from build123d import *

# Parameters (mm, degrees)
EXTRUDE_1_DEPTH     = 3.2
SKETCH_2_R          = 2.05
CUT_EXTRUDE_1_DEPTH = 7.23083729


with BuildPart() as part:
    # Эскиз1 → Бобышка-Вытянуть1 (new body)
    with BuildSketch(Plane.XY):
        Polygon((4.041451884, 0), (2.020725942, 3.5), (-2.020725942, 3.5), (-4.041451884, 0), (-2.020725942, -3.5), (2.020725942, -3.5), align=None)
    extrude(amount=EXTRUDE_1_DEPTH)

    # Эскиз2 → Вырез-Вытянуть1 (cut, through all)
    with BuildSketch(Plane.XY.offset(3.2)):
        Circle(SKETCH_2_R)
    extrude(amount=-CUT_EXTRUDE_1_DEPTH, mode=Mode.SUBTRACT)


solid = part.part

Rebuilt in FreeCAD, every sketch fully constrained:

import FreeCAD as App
import Part
import Sketcher

V = App.Vector
Q = App.Units.Quantity


def add_polygon(sketch, points):
    """Adds a closed chain of lines whose ends are joined by coincident constraints."""
    first, n = sketch.GeometryCount, len(points)
    for a, b in zip(points, points[1:] + points[:1]):
        sketch.addGeometry(Part.LineSegment(App.Vector(*a, 0), App.Vector(*b, 0)), False)
    for i in range(n):
        sketch.addConstraint(Sketcher.Constraint("Coincident", first + i, 2, first + (i + 1) % n, 1))

doc = App.newDocument("Part")
body = doc.addObject("PartDesign::Body", "Body")

sketch1 = body.newObject("Sketcher::SketchObject", "Sketch")
sketch1.AttachmentSupport = (doc.getObject("XY_Plane"), [""])
sketch1.MapMode = "FlatFace"
add_polygon(sketch1, [(4, 0), (2, 3.5), (-2, 3.5), (-4, 0), (-2, -3.5), (2, -3.5)])
sketch1.addConstraint([
    Sketcher.Constraint("Horizontal", 1),
    Sketcher.Constraint("Horizontal", 4),
    Sketcher.Constraint("Symmetric", 0, 2, 3, 2, -1, 1),
    Sketcher.Constraint("Symmetric", 2, 2, 5, 2, -1, 1),
    Sketcher.Constraint("PointOnObject", 2, 2, -1),
    Sketcher.Constraint("Parallel", 2, 5),
    Sketcher.Constraint("Vertical", 1, 2, 3, 2),
    Sketcher.Constraint("Angle", 0, Q("120 deg")),
    Sketcher.Constraint("DistanceY", 3, 2, 1, 2, 7.0),
    Sketcher.Constraint("DistanceX", 1, 2, 1, 1, 4.041452),
])
pad1 = body.newObject("PartDesign::Pad", "Pad")
pad1.Profile = sketch1
pad1.Length = 3.2

sketch2 = body.newObject("Sketcher::SketchObject", "Sketch001")
sketch2.AttachmentSupport = (doc.getObject("XY_Plane"), [""])
sketch2.MapMode = "FlatFace"
sketch2.AttachmentOffset = App.Placement(V(0, 0, 3.2), App.Rotation())
sketch2.addGeometry(Part.Circle(V(0, 0, 0), V(0, 0, 1), 2), False)
sketch2.addConstraint([
    Sketcher.Constraint("Coincident", 0, 3, -1, 1),
    Sketcher.Constraint("Diameter", 0, 4.1),
])
pocket1 = body.newObject("PartDesign::Pocket", "Pocket")
pocket1.Profile = sketch2
pocket1.Type = "ThroughAll"

doc.recompute()
